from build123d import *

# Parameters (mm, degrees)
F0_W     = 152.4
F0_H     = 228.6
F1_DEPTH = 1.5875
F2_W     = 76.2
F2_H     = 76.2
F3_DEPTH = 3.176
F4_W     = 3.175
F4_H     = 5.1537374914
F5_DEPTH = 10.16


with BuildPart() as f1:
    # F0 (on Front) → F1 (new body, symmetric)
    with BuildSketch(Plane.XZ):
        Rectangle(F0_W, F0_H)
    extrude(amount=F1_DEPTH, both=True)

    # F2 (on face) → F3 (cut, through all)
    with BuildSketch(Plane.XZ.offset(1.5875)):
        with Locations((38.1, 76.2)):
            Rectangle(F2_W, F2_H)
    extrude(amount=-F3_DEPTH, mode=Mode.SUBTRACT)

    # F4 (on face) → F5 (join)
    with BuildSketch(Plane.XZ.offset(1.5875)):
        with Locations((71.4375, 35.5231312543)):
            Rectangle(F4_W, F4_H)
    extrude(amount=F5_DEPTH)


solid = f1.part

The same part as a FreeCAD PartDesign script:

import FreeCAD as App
import Part
import Sketcher
Q = App.Units.Quantity

doc = App.newDocument("Part")
body = doc.addObject("PartDesign::Body", "Body")

# Sketch on XZ plane
sketch1 = doc.addObject("Sketcher::SketchObject", "Sketch")
body.addObject(sketch1)
sketch1.AttachmentSupport = (doc.XZ_Plane, [""])
sketch1.MapMode = "FlatFace"
sketch1.addGeometry([
    Part.LineSegment(App.Vector(-76, 114, 0), App.Vector(-76, -114, 0)),
    Part.LineSegment(App.Vector(-76, -114, 0), App.Vector(76, -114, 0)),
    Part.LineSegment(App.Vector(76, -114, 0), App.Vector(76, 114, 0)),
    Part.LineSegment(App.Vector(76, 114, 0), App.Vector(-76, 114, 0)),
], False)
sketch1.addConstraint([
    Sketcher.Constraint("Coincident", 0, 2, 1, 1),
    Sketcher.Constraint("Coincident", 1, 2, 2, 1),
    Sketcher.Constraint("Coincident", 2, 2, 3, 1),
    Sketcher.Constraint("Coincident", 3, 2, 0, 1),
    Sketcher.Constraint("Vertical", 0),
    Sketcher.Constraint("Horizontal", 1),
    Sketcher.Constraint("Vertical", 2),
    Sketcher.Constraint("Horizontal", 3),
    Sketcher.Constraint("Symmetric", 0, 2, 2, 2, -1, 1),
    Sketcher.Constraint("DistanceX", 1, 1, 1, 2, Q("6 in")),
    Sketcher.Constraint("DistanceY", 0, 2, 0, 1, Q("9 in")),
])
pad1 = doc.addObject("PartDesign::Pad", "Pad")
body.addObject(pad1)
pad1.Profile = sketch1
pad1.Length = Q("0.125 in")
pad1.Midplane = True

# Sketch on XZ plane
sketch2 = doc.addObject("Sketcher::SketchObject", "Sketch001")
body.addObject(sketch2)
sketch2.AttachmentSupport = (doc.XZ_Plane, [""])
sketch2.MapMode = "FlatFace"
sketch2.AttachmentOffset = App.Placement(App.Vector(0, 0, 0.0625 * 25.4), App.Rotation())
sketch2.addGeometry([
    Part.LineSegment(App.Vector(0, 114, 0), App.Vector(0, 38, 0)),
    Part.LineSegment(App.Vector(0, 38, 0), App.Vector(76, 38, 0)),
    Part.LineSegment(App.Vector(76, 38, 0), App.Vector(76, 114, 0)),
    Part.LineSegment(App.Vector(76, 114, 0), App.Vector(0, 114, 0)),
], False)
sketch2.addConstraint([
    Sketcher.Constraint("Coincident", 0, 2, 1, 1),
    Sketcher.Constraint("Coincident", 1, 2, 2, 1),
    Sketcher.Constraint("Coincident", 2, 2, 3, 1),
    Sketcher.Constraint("Coincident", 3, 2, 0, 1),
    Sketcher.Constraint("Vertical", 0),
    Sketcher.Constraint("Horizontal", 1),
    Sketcher.Constraint("Vertical", 2),
    Sketcher.Constraint("Horizontal", 3),
    Sketcher.Constraint("PointOnObject", 0, 2, -2),
    Sketcher.Constraint("Equal", 3, 0),
    Sketcher.Constraint("DistanceX", 1, 1, 1, 2, Q("3 in")),
    Sketcher.Constraint("DistanceY", -1, 1, 0, 2, Q("1.5 in")),
])
pocket1 = doc.addObject("PartDesign::Pocket", "Pocket")
body.addObject(pocket1)
pocket1.Profile = sketch2
pocket1.Type = "ThroughAll"

# Sketch on XZ plane
sketch3 = doc.addObject("Sketcher::SketchObject", "Sketch002")
body.addObject(sketch3)
sketch3.AttachmentSupport = (doc.XZ_Plane, [""])
sketch3.MapMode = "FlatFace"
sketch3.AttachmentOffset = App.Placement(App.Vector(0, 0, 0.0625 * 25.4), App.Rotation())
sketch3.addGeometry([
    Part.LineSegment(App.Vector(69.8, 38.1, 0), App.Vector(69.8, 32.9, 0)),
    Part.LineSegment(App.Vector(69.8, 32.9, 0), App.Vector(73, 32.9, 0)),
    Part.LineSegment(App.Vector(73, 32.9, 0), App.Vector(73, 38.1, 0)),
    Part.LineSegment(App.Vector(73, 38.1, 0), App.Vector(69.8, 38.1, 0)),
], False)
sketch3.addConstraint([
    Sketcher.Constraint("Coincident", 0, 2, 1, 1),
    Sketcher.Constraint("Coincident", 1, 2, 2, 1),
    Sketcher.Constraint("Coincident", 2, 2, 3, 1),
    Sketcher.Constraint("Coincident", 3, 2, 0, 1),
    Sketcher.Constraint("Vertical", 0),
    Sketcher.Constraint("Horizontal", 1),
    Sketcher.Constraint("Vertical", 2),
    Sketcher.Constraint("Horizontal", 3),
    Sketcher.Constraint("DistanceY", -1, 1, 2, 2, Q("1.5 in")),
    Sketcher.Constraint("DistanceX", 1, 1, 1, 2, Q("0.125 in")),
    Sketcher.Constraint("DistanceX", -1, 1, 0, 2, Q("2.75 in")),
    Sketcher.Constraint("DistanceY", 0, 2, 0, 1, 5.153737),
])
pad2 = doc.addObject("PartDesign::Pad", "Pad001")
body.addObject(pad2)
pad2.Profile = sketch3
pad2.Length = Q("0.4 in")

doc.recompute()
